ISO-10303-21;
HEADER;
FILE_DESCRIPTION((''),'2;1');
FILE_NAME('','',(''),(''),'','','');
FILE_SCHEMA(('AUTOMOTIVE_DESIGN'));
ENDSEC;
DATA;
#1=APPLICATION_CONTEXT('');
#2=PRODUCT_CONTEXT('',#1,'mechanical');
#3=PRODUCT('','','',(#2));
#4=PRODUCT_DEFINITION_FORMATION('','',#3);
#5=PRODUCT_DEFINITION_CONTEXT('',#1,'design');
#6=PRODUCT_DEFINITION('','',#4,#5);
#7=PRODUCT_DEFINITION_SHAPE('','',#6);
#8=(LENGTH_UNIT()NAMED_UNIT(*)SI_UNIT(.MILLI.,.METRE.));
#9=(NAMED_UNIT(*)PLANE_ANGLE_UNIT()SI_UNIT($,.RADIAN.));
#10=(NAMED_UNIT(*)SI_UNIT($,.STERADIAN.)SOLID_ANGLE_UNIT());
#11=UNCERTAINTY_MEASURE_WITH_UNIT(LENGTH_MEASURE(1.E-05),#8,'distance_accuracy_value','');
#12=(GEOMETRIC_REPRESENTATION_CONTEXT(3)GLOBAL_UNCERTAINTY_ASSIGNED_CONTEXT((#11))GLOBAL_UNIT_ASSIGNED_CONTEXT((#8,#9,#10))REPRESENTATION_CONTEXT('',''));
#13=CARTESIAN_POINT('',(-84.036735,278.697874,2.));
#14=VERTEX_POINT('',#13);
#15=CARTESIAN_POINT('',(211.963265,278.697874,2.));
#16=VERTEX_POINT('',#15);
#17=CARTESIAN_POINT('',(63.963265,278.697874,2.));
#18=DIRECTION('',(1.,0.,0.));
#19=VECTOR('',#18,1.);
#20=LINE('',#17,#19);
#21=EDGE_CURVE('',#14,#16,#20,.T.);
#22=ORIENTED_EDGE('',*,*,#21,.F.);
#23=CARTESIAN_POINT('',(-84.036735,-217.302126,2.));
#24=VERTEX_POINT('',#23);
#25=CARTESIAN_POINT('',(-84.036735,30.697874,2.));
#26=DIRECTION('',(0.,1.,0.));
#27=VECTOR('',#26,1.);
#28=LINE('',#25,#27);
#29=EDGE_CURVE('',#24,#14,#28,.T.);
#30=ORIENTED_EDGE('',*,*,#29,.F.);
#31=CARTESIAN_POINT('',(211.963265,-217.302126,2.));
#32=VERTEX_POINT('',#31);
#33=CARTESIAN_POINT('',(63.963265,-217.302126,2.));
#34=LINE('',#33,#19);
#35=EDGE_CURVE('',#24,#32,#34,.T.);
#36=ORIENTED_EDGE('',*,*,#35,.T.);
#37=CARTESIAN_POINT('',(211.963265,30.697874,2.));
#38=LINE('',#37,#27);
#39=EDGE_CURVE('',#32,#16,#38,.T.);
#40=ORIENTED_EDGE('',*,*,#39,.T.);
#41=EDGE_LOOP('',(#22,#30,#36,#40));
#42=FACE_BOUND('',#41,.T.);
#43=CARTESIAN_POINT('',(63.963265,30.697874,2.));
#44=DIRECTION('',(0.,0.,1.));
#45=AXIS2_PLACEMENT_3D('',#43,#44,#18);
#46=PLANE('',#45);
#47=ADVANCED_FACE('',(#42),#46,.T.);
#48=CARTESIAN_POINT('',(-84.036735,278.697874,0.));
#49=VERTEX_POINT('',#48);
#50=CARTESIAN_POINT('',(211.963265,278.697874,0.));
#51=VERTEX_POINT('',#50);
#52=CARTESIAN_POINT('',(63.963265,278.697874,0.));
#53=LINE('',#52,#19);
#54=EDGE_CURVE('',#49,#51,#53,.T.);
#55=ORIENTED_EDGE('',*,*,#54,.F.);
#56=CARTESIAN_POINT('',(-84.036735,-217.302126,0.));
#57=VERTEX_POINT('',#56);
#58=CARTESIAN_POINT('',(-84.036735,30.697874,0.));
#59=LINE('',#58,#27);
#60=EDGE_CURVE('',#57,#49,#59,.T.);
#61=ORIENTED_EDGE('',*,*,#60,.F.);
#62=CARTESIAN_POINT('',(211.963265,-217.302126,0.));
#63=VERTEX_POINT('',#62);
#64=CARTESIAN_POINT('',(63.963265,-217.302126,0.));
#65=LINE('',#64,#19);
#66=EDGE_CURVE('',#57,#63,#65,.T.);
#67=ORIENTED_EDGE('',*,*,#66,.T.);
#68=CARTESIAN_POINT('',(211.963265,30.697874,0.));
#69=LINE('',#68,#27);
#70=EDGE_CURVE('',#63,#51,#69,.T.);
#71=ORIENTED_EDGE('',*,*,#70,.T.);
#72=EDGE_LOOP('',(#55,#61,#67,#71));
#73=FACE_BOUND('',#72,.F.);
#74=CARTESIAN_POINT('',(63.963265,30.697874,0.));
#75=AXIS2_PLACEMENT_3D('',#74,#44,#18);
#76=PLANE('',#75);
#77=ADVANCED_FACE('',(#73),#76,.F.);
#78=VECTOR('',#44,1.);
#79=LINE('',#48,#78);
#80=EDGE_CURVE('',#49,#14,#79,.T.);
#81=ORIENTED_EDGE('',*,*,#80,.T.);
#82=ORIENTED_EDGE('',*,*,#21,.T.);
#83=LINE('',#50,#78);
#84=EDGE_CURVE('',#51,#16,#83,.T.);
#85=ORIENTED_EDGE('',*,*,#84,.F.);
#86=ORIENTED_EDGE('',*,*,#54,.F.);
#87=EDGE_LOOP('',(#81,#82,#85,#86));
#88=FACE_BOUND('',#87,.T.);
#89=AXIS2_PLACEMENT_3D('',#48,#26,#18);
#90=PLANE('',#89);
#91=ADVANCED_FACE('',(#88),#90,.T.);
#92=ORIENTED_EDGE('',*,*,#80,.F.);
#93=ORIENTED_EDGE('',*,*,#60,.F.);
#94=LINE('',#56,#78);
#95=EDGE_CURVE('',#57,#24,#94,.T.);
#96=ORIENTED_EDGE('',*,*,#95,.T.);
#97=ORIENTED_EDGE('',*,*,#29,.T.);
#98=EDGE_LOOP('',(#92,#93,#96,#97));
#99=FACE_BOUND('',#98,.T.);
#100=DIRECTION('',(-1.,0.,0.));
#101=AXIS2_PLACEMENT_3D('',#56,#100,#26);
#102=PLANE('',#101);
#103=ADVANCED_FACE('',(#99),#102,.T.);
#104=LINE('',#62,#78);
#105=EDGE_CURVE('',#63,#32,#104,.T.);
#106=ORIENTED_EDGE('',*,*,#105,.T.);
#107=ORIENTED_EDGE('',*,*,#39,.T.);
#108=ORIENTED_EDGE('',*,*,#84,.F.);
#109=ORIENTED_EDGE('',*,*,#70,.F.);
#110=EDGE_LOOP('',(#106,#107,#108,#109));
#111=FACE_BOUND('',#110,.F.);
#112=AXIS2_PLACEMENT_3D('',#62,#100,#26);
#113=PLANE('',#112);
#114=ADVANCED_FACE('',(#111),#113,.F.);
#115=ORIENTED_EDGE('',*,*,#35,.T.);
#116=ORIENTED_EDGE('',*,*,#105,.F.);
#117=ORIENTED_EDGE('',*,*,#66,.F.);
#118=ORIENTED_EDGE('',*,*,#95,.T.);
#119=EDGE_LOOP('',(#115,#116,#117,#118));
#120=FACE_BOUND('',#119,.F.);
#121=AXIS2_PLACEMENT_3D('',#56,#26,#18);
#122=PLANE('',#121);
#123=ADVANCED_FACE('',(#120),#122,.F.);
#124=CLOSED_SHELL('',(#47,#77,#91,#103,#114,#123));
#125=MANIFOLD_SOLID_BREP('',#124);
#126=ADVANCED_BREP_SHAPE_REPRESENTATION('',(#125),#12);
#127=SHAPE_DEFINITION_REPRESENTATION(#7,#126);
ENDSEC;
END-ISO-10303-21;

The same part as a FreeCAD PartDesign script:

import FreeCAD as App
import Part
import Sketcher

doc = App.newDocument("Part")
body = doc.addObject("PartDesign::Body", "Body")

# Sketch on XY plane
sketch1 = body.newObject("Sketcher::SketchObject", "Sketch")
sketch1.AttachmentSupport = (doc.getObject("XY_Plane"), [""])
sketch1.MapMode = "FlatFace"
sketch1.addGeometry(Part.LineSegment(App.Vector(-84.036735, 278.697874, 0), App.Vector(-84.036735, -217.302126, 0)), False)
sketch1.addGeometry(Part.LineSegment(App.Vector(-84.036735, -217.302126, 0), App.Vector(211.963265, -217.302126, 0)), False)
sketch1.addGeometry(Part.LineSegment(App.Vector(211.963265, -217.302126, 0), App.Vector(211.963265, 278.697874, 0)), False)
sketch1.addGeometry(Part.LineSegment(App.Vector(211.963265, 278.697874, 0), App.Vector(-84.036735, 278.697874, 0)), False)
sketch1.addConstraint(Sketcher.Constraint("Coincident", 0, 2, 1, 1))
sketch1.addConstraint(Sketcher.Constraint("Coincident", 1, 2, 2, 1))
sketch1.addConstraint(Sketcher.Constraint("Coincident", 2, 2, 3, 1))
sketch1.addConstraint(Sketcher.Constraint("Coincident", 3, 2, 0, 1))
sketch1.addConstraint(Sketcher.Constraint("Vertical", 0))
sketch1.addConstraint(Sketcher.Constraint("Horizontal", 1))
sketch1.addConstraint(Sketcher.Constraint("Vertical", 2))
sketch1.addConstraint(Sketcher.Constraint("Horizontal", 3))
sketch1.addConstraint(Sketcher.Constraint("DistanceX", 1, 1, 1, 2, 296.0))
sketch1.addConstraint(Sketcher.Constraint("DistanceY", 0, 2, 0, 1, 496.0))
sketch1.addConstraint(Sketcher.Constraint("DistanceX", 0, 2, -1, 1, 84.036735))
sketch1.addConstraint(Sketcher.Constraint("DistanceY", 0, 2, -1, 1, 217.302126))
pad1 = body.newObject("PartDesign::Pad", "Pad")
pad1.Profile = sketch1
pad1.Length = 2

doc.recompute()
